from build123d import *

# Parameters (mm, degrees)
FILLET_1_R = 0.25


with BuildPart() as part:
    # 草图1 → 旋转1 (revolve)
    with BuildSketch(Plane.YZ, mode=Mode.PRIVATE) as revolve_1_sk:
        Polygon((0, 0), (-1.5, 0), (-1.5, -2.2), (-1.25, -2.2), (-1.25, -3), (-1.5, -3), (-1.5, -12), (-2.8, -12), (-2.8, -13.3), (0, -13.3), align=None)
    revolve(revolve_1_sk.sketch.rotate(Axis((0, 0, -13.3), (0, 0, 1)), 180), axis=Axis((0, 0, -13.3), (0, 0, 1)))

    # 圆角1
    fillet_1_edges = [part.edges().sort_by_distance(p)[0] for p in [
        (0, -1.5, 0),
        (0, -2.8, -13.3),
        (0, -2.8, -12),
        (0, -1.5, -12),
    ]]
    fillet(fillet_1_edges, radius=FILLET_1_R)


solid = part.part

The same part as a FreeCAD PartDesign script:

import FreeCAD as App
import Part
import Sketcher


def edges_at(feature, points):
    """Names of the edges that pass closest to the given points."""
    edges = feature.Shape.Edges
    near = lambda p: min(range(len(edges)), key=lambda i: edges[i].distToShape(Part.Vertex(*p))[0])
    return sorted({f"Edge{near(p) + 1}" for p in points})


def add_polygon(sketch, points):
    """Adds a closed chain of lines whose ends are joined by coincident constraints."""
    first, n = sketch.GeometryCount, len(points)
    for a, b in zip(points, points[1:] + points[:1]):
        sketch.addGeometry(Part.LineSegment(App.Vector(*a, 0), App.Vector(*b, 0)), False)
    for i in range(n):
        sketch.addConstraint(Sketcher.Constraint("Coincident", first + i, 2, first + (i + 1) % n, 1))

doc = App.newDocument("Part")
body = doc.addObject("PartDesign::Body", "Body")

sketch1 = body.newObject("Sketcher::SketchObject", "Sketch")
sketch1.AttachmentSupport = (doc.getObject("YZ_Plane"), [""])
sketch1.MapMode = "FlatFace"
add_polygon(sketch1, [(0, 0), (-1.5, 0), (-1.5, -2.2), (-1.25, -2.2), (-1.25, -3), (-1.5, -3), (-1.5, -12), (-2.8, -12), (-2.8, -13.3), (0, -13.3)])
sketch1.addConstraint(Sketcher.Constraint("Horizontal", 0))
sketch1.addConstraint(Sketcher.Constraint("Vertical", 1))
sketch1.addConstraint(Sketcher.Constraint("Horizontal", 2))
sketch1.addConstraint(Sketcher.Constraint("Vertical", 3))
sketch1.addConstraint(Sketcher.Constraint("Horizontal", 4))
sketch1.addConstraint(Sketcher.Constraint("Vertical", 5))
sketch1.addConstraint(Sketcher.Constraint("Horizontal", 6))
sketch1.addConstraint(Sketcher.Constraint("Vertical", 7))
sketch1.addConstraint(Sketcher.Constraint("Horizontal", 8))
sketch1.addConstraint(Sketcher.Constraint("Vertical", 9))
sketch1.addConstraint(Sketcher.Constraint("Coincident", 9, 2, -1, 1))
sketch1.addConstraint(Sketcher.Constraint("Vertical", 1, 2, 4, 2))
sketch1.addConstraint(Sketcher.Constraint("Equal", 6, 7))
sketch1.addConstraint(Sketcher.Constraint("DistanceY", 5, 2, 5, 1, 9.0))
sketch1.addConstraint(Sketcher.Constraint("DistanceX", 0, 2, 0, 1, 1.5))
sketch1.addConstraint(Sketcher.Constraint("DistanceX", 6, 2, 6, 1, 1.3))
sketch1.addConstraint(Sketcher.Constraint("DistanceY", 1, 2, 1, 1, 2.2))
sketch1.addConstraint(Sketcher.Constraint("DistanceY", 3, 2, 3, 1, 0.8))
sketch1.addConstraint(Sketcher.Constraint("DistanceX", 2, 1, 2, 2, 0.25))
revolution = body.newObject("PartDesign::Revolution", "Revolution")
revolution.Profile = sketch1
revolution.ReferenceAxis = (sketch1, ["V_Axis"])
revolution.Angle = 360
doc.recompute()

fillet = body.newObject("PartDesign::Fillet", "Fillet")
fillet.Base = (revolution, edges_at(revolution, [
    (0, -1.5, 0),
    (0, -2.8, -13.3),
    (0, -2.8, -12),
    (0, -1.5, -12),
]))
fillet.Radius = 0.25

doc.recompute()
